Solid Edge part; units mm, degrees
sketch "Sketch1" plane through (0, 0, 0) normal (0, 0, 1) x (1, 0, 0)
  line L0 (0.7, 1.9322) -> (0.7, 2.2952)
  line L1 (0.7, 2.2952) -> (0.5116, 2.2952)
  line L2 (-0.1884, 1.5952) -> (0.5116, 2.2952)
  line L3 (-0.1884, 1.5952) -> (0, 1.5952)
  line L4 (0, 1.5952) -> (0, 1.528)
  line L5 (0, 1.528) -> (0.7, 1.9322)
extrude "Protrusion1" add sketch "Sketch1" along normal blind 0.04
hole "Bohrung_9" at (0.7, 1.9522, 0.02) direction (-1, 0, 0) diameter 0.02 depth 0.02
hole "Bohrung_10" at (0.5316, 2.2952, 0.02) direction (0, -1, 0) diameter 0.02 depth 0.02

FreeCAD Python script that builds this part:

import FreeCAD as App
import Part
import Sketcher

V = App.Vector
Q = App.Units.Quantity


def add_polygon(sketch, points):
    """Adds a closed chain of lines whose ends are joined by coincident constraints."""
    first, n = sketch.GeometryCount, len(points)
    for a, b in zip(points, points[1:] + points[:1]):
        sketch.addGeometry(Part.LineSegment(App.Vector(*a, 0), App.Vector(*b, 0)), False)
    for i in range(n):
        sketch.addConstraint(Sketcher.Constraint("Coincident", first + i, 2, first + (i + 1) % n, 1))

doc = App.newDocument("Part")
params = doc.addObject("Spreadsheet::Sheet", "Params")
for row, (alias, value) in enumerate([
    ("pad1_length", "0.04 mm"),
    ("sketch2_diameter", "0.02 mm"),
    ("hole_diameter", "0.02 mm"),
    ("hole_depth", "0.02 mm"),
    ("sketch3_diameter", "0.02 mm"),
    ("hole2_diameter", "0.02 mm"),
    ("hole2_depth", "0.02 mm"),
], start=1):
    params.set(f"A{row}", alias)
    params.set(f"B{row}", "=" + value)
    params.setAlias(f"B{row}", alias)

body = doc.addObject("PartDesign::Body", "Body")

sketch1 = body.newObject("Sketcher::SketchObject", "Sketch")
sketch1.AttachmentSupport = (doc.getObject("XY_Plane"), [""])
sketch1.MapMode = "FlatFace"
add_polygon(sketch1, [(0, 1.53), (0.7, 1.93), (0.7, 2.3), (0.51, 2.3), (-0.19, 1.6), (0, 1.6)])
sketch1.addConstraint(Sketcher.Constraint("Vertical", 1))
sketch1.addConstraint(Sketcher.Constraint("Horizontal", 2))
sketch1.addConstraint(Sketcher.Constraint("Horizontal", 4))
sketch1.addConstraint(Sketcher.Constraint("Vertical", 5))
sketch1.addConstraint(Sketcher.Constraint("PointOnObject", 4, 2, -2))
sketch1.addConstraint(Sketcher.Constraint("Equal", 2, 4))
sketch1.addConstraint(Sketcher.Constraint("Angle", 3, Q("-135 deg")))
sketch1.addConstraint(Sketcher.Constraint("DistanceX", -1, 1, 0, 2, Q("0.7 mm")))
sketch1.addConstraint(Sketcher.Constraint("DistanceY", 1, 1, 1, 2, Q("0.363 mm")))
sketch1.addConstraint(Sketcher.Constraint("DistanceX", 2, 2, 2, 1, Q("0.1884 mm")))
sketch1.addConstraint(Sketcher.Constraint("DistanceY", 5, 2, 5, 1, Q("0.0672 mm")))
sketch1.addConstraint(Sketcher.Constraint("DistanceY", -1, 1, 5, 2, Q("1.528 mm")))
pad1 = body.newObject("PartDesign::Pad", "Pad")
pad1.Profile = sketch1
pad1.setExpression("Length", "Params.pad1_length")

sketch2 = body.newObject("Sketcher::SketchObject", "Sketch001")
sketch2.AttachmentSupport = (doc.getObject("YZ_Plane"), [""])
sketch2.MapMode = "FlatFace"
sketch2.AttachmentOffset = App.Placement(V(0, 0, 0.7), App.Rotation())
sketch2.addGeometry(Part.Circle(V(1.952, 0.02, 0), V(0, 0, 1), 0.01), False)
sketch2.addConstraint(Sketcher.Constraint("Diameter", 0, Q("0.02 mm")))
sketch2.addConstraint(Sketcher.Constraint("DistanceY", -1, 1, 0, 3, Q("0.02 mm")))
sketch2.addConstraint(Sketcher.Constraint("DistanceX", -1, 1, 0, 3, Q("1.9522 mm")))
sketch2.setExpression("Constraints[0]", "Params.sketch2_diameter")
doc.recompute()
hole = body.newObject("PartDesign::Hole", "Hole")
hole.Profile = sketch2
hole.ThreadType = "None"
hole.setExpression("Diameter", "Params.hole_diameter")
hole.DepthType = "Dimension"
hole.setExpression("Depth", "Params.hole_depth")
hole.DrillPoint = "Flat"

sketch3 = body.newObject("Sketcher::SketchObject", "Sketch002")
sketch3.AttachmentSupport = (doc.getObject("XZ_Plane"), [""])
sketch3.MapMode = "FlatFace"
sketch3.AttachmentOffset = App.Placement(V(0, 0, -2.2952), App.Rotation())
sketch3.addGeometry(Part.Circle(V(0.532, 0.02, 0), V(0, 0, 1), 0.01), False)
sketch3.addConstraint(Sketcher.Constraint("Diameter", 0, Q("0.02 mm")))
sketch3.addConstraint(Sketcher.Constraint("DistanceY", -1, 1, 0, 3, Q("0.02 mm")))
sketch3.addConstraint(Sketcher.Constraint("DistanceX", -1, 1, 0, 3, Q("0.5316 mm")))
sketch3.setExpression("Constraints[0]", "Params.sketch3_diameter")
doc.recompute()
hole2 = body.newObject("PartDesign::Hole", "Hole001")
hole2.Profile = sketch3
hole2.ThreadType = "None"
hole2.setExpression("Diameter", "Params.hole2_diameter")
hole2.DepthType = "Dimension"
hole2.setExpression("Depth", "Params.hole2_depth")
hole2.DrillPoint = "Flat"
hole2.Reversed = True

doc.recompute()
